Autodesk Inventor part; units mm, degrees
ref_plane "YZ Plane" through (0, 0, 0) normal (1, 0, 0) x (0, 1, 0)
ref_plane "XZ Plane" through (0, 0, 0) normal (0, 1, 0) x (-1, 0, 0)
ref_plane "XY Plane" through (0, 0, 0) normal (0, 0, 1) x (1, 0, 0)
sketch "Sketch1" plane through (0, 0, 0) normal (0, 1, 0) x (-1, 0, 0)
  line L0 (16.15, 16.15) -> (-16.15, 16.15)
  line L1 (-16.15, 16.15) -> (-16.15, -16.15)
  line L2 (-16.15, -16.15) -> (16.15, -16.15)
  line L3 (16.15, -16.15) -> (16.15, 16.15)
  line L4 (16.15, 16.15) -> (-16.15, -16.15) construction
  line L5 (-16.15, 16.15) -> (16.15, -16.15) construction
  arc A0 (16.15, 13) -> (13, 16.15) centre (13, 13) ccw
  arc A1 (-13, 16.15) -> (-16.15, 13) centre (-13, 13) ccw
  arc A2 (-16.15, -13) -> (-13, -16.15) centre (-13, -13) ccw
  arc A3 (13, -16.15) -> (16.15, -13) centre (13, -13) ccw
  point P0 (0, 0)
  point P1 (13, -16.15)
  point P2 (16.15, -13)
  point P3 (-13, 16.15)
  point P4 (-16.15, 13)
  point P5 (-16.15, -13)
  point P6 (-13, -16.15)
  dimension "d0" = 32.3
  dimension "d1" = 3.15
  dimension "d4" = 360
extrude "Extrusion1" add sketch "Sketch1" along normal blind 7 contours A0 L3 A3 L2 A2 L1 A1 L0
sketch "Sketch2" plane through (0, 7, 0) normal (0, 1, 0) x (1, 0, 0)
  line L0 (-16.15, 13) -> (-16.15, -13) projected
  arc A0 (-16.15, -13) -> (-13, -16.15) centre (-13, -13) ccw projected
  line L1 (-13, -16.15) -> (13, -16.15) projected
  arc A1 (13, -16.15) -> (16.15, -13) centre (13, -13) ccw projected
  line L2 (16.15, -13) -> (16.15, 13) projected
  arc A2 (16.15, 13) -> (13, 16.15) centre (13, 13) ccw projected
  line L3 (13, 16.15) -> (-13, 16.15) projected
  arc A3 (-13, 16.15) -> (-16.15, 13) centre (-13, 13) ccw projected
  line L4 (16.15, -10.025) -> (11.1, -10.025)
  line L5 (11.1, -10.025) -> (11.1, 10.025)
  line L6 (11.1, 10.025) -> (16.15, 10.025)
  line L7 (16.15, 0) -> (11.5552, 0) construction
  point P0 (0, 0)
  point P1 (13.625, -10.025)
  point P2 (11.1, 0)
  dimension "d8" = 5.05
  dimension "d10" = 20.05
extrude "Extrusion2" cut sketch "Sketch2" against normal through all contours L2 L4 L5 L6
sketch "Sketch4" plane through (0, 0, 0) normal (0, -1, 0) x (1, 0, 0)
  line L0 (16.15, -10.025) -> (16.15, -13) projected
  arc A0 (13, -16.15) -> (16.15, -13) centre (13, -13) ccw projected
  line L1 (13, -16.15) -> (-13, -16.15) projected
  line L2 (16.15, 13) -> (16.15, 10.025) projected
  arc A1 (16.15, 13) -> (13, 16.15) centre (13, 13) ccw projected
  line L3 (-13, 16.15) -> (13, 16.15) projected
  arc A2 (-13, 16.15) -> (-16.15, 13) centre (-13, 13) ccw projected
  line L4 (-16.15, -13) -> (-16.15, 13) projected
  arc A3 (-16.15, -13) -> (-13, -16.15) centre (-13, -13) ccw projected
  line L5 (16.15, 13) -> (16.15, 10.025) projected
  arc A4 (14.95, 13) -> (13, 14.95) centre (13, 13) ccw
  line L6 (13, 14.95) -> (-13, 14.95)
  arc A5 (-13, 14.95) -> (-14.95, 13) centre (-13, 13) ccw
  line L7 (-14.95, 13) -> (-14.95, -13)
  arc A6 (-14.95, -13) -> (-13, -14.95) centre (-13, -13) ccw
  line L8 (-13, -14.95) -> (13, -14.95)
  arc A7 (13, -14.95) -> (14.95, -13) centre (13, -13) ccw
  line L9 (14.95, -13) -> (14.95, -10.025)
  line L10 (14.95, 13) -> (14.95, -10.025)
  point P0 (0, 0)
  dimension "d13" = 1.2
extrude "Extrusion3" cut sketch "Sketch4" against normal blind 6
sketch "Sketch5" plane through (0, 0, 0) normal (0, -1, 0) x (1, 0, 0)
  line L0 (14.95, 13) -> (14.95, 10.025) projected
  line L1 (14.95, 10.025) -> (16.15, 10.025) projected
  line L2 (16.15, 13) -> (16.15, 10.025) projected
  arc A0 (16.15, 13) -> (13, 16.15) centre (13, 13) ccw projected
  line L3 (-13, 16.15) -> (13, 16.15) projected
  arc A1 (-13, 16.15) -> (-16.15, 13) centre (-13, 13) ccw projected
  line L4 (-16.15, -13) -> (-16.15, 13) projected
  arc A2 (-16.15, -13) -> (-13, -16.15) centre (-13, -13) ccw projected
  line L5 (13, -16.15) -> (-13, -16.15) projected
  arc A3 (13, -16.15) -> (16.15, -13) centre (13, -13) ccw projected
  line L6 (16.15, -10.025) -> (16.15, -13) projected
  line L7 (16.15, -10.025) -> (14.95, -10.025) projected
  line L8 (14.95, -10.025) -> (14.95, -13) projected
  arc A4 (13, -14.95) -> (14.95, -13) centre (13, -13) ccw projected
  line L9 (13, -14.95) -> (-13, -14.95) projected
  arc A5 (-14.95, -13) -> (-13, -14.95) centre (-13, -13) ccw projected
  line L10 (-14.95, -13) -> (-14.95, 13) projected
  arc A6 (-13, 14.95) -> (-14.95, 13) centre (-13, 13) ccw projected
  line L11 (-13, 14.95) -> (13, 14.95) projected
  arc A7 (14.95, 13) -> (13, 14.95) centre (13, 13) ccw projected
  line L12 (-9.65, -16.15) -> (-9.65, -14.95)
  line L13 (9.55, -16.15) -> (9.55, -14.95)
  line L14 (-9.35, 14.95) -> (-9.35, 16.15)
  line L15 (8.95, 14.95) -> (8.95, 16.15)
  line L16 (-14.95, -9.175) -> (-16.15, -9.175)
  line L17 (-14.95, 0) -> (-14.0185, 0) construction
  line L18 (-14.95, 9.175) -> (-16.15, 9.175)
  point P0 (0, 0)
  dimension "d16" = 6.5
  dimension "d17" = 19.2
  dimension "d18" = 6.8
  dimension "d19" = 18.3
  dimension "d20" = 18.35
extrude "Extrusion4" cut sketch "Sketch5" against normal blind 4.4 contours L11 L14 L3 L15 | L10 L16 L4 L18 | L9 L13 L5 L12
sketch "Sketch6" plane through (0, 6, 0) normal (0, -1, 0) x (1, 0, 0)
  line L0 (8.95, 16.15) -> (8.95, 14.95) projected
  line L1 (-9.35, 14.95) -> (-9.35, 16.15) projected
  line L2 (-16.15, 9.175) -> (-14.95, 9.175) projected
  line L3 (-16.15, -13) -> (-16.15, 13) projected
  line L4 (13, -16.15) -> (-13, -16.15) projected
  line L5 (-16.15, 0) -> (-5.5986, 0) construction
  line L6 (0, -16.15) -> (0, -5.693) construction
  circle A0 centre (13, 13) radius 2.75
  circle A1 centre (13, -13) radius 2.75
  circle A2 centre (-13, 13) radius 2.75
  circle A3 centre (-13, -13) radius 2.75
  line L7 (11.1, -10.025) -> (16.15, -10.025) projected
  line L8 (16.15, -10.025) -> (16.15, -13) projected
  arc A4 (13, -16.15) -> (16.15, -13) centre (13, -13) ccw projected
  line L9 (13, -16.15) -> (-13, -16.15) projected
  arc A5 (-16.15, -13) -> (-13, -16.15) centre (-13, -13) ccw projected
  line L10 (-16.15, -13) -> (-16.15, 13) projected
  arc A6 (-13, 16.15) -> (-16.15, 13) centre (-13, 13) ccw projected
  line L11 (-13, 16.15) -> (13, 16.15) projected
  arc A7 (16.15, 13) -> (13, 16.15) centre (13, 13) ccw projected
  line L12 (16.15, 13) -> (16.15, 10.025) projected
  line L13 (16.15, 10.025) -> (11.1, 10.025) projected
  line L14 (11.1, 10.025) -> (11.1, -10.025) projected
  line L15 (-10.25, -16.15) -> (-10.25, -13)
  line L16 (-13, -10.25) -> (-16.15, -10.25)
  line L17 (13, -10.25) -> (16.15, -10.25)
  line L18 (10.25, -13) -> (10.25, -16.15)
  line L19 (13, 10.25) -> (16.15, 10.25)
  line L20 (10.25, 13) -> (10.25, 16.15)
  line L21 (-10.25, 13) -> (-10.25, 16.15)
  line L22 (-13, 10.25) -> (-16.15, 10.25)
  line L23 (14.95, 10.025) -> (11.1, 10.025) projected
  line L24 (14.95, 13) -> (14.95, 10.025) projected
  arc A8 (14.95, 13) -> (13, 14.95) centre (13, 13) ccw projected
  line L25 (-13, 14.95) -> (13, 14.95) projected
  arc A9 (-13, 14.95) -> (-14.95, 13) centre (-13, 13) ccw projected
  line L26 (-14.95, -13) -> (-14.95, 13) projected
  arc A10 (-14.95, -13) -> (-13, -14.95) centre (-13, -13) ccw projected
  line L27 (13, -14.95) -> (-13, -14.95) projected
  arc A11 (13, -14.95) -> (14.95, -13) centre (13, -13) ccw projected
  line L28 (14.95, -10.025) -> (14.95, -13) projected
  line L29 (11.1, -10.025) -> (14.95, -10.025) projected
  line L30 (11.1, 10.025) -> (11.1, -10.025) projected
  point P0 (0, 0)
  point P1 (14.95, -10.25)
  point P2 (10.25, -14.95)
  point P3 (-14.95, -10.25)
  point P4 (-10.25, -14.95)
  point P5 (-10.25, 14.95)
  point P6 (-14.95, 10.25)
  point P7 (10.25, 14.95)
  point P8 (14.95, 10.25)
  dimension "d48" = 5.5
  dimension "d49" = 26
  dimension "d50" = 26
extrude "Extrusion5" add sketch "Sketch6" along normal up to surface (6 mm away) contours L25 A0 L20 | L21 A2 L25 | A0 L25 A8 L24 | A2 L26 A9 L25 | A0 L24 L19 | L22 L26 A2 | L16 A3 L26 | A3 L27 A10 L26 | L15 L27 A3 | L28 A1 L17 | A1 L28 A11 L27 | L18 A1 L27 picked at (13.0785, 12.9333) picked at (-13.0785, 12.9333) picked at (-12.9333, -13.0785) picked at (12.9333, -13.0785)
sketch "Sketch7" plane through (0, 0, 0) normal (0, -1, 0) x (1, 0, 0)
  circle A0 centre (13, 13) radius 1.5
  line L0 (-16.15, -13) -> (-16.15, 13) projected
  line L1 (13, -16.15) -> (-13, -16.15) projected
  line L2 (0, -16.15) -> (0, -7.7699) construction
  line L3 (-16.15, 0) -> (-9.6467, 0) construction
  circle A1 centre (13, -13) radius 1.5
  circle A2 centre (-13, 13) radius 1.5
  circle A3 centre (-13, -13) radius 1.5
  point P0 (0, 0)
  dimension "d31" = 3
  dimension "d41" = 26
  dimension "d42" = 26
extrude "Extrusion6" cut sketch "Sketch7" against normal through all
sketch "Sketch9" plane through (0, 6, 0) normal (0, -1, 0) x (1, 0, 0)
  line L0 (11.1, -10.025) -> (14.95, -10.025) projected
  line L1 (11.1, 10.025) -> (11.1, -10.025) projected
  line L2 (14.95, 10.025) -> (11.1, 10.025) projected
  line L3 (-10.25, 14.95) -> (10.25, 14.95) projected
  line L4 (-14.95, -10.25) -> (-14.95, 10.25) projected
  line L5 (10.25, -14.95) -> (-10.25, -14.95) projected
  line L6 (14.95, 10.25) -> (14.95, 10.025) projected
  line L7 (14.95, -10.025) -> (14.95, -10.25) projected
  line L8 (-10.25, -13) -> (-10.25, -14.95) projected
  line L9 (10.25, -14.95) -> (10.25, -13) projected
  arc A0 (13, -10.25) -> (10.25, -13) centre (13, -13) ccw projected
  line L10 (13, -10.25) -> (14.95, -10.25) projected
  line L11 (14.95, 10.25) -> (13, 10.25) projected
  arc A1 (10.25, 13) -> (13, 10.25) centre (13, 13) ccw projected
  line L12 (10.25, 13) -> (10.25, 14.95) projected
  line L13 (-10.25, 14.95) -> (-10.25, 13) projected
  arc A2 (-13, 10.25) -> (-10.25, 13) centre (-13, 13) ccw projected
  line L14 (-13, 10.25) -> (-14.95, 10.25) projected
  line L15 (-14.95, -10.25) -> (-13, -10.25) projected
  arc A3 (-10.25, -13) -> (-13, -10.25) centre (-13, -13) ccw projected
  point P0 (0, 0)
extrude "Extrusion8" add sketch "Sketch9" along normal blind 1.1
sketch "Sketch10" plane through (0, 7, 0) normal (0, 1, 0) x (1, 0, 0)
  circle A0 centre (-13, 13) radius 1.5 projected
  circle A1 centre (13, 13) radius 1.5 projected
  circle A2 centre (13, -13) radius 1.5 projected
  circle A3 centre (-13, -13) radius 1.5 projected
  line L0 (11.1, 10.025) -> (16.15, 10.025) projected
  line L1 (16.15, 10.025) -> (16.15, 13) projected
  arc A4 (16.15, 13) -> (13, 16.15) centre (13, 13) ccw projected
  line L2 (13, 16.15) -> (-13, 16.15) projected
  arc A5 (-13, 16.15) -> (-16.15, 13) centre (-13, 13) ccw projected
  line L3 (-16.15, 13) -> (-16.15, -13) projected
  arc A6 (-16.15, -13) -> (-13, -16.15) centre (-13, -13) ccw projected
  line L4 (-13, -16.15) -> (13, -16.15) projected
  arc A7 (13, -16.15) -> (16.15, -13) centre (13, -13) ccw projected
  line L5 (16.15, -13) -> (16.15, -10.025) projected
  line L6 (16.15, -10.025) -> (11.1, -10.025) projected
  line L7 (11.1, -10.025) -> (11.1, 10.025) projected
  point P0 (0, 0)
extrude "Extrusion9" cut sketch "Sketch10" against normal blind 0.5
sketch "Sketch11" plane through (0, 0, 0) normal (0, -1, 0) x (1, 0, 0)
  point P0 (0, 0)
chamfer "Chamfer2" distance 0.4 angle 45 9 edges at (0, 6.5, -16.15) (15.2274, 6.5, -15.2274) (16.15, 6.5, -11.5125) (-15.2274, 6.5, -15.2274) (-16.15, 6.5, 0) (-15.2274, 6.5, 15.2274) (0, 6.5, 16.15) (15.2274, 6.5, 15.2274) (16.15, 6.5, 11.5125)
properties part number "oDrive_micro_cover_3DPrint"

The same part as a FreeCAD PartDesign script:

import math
import FreeCAD as App
import Part
import Sketcher


def edges_at(feature, points):
    """Names of the edges that pass closest to the given points."""
    edges = feature.Shape.Edges
    near = lambda p: min(range(len(edges)), key=lambda i: edges[i].distToShape(Part.Vertex(*p))[0])
    return sorted({f"Edge{near(p) + 1}" for p in points})

doc = App.newDocument("Part")
body = doc.addObject("PartDesign::Body", "Body")

# Sketch on XZ plane
sketch1 = body.newObject("Sketcher::SketchObject", "Sketch")
sketch1.AttachmentSupport = (doc.getObject("XZ_Plane"), [""])
sketch1.MapMode = "FlatFace"
sketch1.addGeometry(Part.ArcOfCircle(Part.Circle(App.Vector(-13, 13, 0), App.Vector(0, 0, 1), 3.1), math.radians(90), math.radians(180)), False)
sketch1.addGeometry(Part.LineSegment(App.Vector(-13, 16.1, 0), App.Vector(13, 16.1, 0)), False)
sketch1.addGeometry(Part.ArcOfCircle(Part.Circle(App.Vector(13, 13, 0), App.Vector(0, 0, 1), 3.1), math.radians(0), math.radians(90)), False)
sketch1.addGeometry(Part.LineSegment(App.Vector(16.1, 13, 0), App.Vector(16.1, -13, 0)), False)
sketch1.addGeometry(Part.ArcOfCircle(Part.Circle(App.Vector(13, -13, 0), App.Vector(0, 0, 1), 3.1), math.radians(-90), math.radians(0)), False)
sketch1.addGeometry(Part.LineSegment(App.Vector(13, -16.1, 0), App.Vector(-13, -16.1, 0)), False)
sketch1.addGeometry(Part.ArcOfCircle(Part.Circle(App.Vector(-13, -13, 0), App.Vector(0, 0, 1), 3.1), math.radians(180), math.radians(270)), False)
sketch1.addGeometry(Part.LineSegment(App.Vector(-16.1, -13, 0), App.Vector(-16.1, 13, 0)), False)
sketch1.addConstraint(Sketcher.Constraint("Tangent", 0, 1, 1, 1))
sketch1.addConstraint(Sketcher.Constraint("Tangent", 1, 2, 2, 2))
sketch1.addConstraint(Sketcher.Constraint("Tangent", 2, 1, 3, 1))
sketch1.addConstraint(Sketcher.Constraint("Tangent", 3, 2, 4, 2))
sketch1.addConstraint(Sketcher.Constraint("Tangent", 4, 1, 5, 1))
sketch1.addConstraint(Sketcher.Constraint("Tangent", 5, 2, 6, 2))
sketch1.addConstraint(Sketcher.Constraint("Tangent", 6, 1, 7, 1))
sketch1.addConstraint(Sketcher.Constraint("Tangent", 7, 2, 0, 2))
sketch1.addConstraint(Sketcher.Constraint("Horizontal", 1))
sketch1.addConstraint(Sketcher.Constraint("Vertical", 3))
sketch1.addConstraint(Sketcher.Constraint("Horizontal", 5))
sketch1.addConstraint(Sketcher.Constraint("Vertical", 7))
sketch1.addConstraint(Sketcher.Constraint("Equal", 0, 2))
sketch1.addConstraint(Sketcher.Constraint("Equal", 2, 4))
sketch1.addConstraint(Sketcher.Constraint("Equal", 4, 6))
sketch1.addConstraint(Sketcher.Constraint("Symmetric", 0, 3, 4, 3, -1, 1))
sketch1.addConstraint(Sketcher.Constraint("Equal", 5, 3))
sketch1.addConstraint(Sketcher.Constraint("Radius", 0, 3.15))
sketch1.addConstraint(Sketcher.Constraint("DistanceX", 1, 1, 1, 2, 26.0))
pad1 = body.newObject("PartDesign::Pad", "Pad")
pad1.Profile = sketch1
pad1.Length = 7
pad1.Reversed = True

# Sketch on XZ plane
sketch2 = body.newObject("Sketcher::SketchObject", "Sketch001")
sketch2.AttachmentSupport = (doc.getObject("XZ_Plane"), [""])
sketch2.MapMode = "FlatFace"
sketch2.AttachmentOffset = App.Placement(App.Vector(0, 0, -7), App.Rotation())
sketch2.addGeometry(Part.LineSegment(App.Vector(16, 10, 0), App.Vector(16, -10, 0)), False)
sketch2.addGeometry(Part.LineSegment(App.Vector(16, -10, 0), App.Vector(11, -10, 0)), False)
sketch2.addGeometry(Part.LineSegment(App.Vector(11, -10, 0), App.Vector(11, 10, 0)), False)
sketch2.addGeometry(Part.LineSegment(App.Vector(11, 10, 0), App.Vector(16, 10, 0)), False)
sketch2.addConstraint(Sketcher.Constraint("Coincident", 0, 2, 1, 1))
sketch2.addConstraint(Sketcher.Constraint("Coincident", 1, 2, 2, 1))
sketch2.addConstraint(Sketcher.Constraint("Coincident", 2, 2, 3, 1))
sketch2.addConstraint(Sketcher.Constraint("Coincident", 3, 2, 0, 1))
sketch2.addConstraint(Sketcher.Constraint("Vertical", 0))
sketch2.addConstraint(Sketcher.Constraint("Horizontal", 1))
sketch2.addConstraint(Sketcher.Constraint("Vertical", 2))
sketch2.addConstraint(Sketcher.Constraint("Horizontal", 3))
sketch2.addConstraint(Sketcher.Constraint("DistanceX", 1, 2, 1, 1, 5.05))
sketch2.addConstraint(Sketcher.Constraint("DistanceY", 0, 2, 0, 1, 20.05))
sketch2.addConstraint(Sketcher.Constraint("DistanceX", -1, 1, 1, 2, 11.1))
sketch2.addConstraint(Sketcher.Constraint("DistanceY", 0, 2, -1, 1, 10.025))
pocket1 = body.newObject("PartDesign::Pocket", "Pocket")
pocket1.Profile = sketch2
pocket1.Type = "ThroughAll"
pocket1.Reversed = True

# Sketch on XZ plane
sketch3 = body.newObject("Sketcher::SketchObject", "Sketch002")
sketch3.AttachmentSupport = (doc.getObject("XZ_Plane"), [""])
sketch3.MapMode = "FlatFace"
sketch3.addGeometry(Part.LineSegment(App.Vector(14.9, -13, 0), App.Vector(14.9, 13, 0)), False)
sketch3.addGeometry(Part.ArcOfCircle(Part.Circle(App.Vector(13, 13, 0), App.Vector(0, 0, 1), 1.9), math.radians(0), math.radians(90)), False)
sketch3.addGeometry(Part.LineSegment(App.Vector(13, 14.9, 0), App.Vector(-13, 14.9, 0)), False)
sketch3.addGeometry(Part.ArcOfCircle(Part.Circle(App.Vector(-13, 13, 0), App.Vector(0, 0, 1), 1.9), math.radians(90), math.radians(180)), False)
sketch3.addGeometry(Part.LineSegment(App.Vector(-14.9, 13, 0), App.Vector(-14.9, -13, 0)), False)
sketch3.addGeometry(Part.ArcOfCircle(Part.Circle(App.Vector(-13, -13, 0), App.Vector(0, 0, 1), 1.9), math.radians(180), math.radians(270)), False)
sketch3.addGeometry(Part.LineSegment(App.Vector(-13, -14.9, 0), App.Vector(13, -14.9, 0)), False)
sketch3.addGeometry(Part.ArcOfCircle(Part.Circle(App.Vector(13, -13, 0), App.Vector(0, 0, 1), 1.9), math.radians(-90), math.radians(0)), False)
sketch3.addConstraint(Sketcher.Constraint("Tangent", 0, 2, 1, 1))
sketch3.addConstraint(Sketcher.Constraint("Tangent", 1, 2, 2, 1))
sketch3.addConstraint(Sketcher.Constraint("Tangent", 2, 2, 3, 1))
sketch3.addConstraint(Sketcher.Constraint("Tangent", 3, 2, 4, 1))
sketch3.addConstraint(Sketcher.Constraint("Tangent", 4, 2, 5, 1))
sketch3.addConstraint(Sketcher.Constraint("Tangent", 5, 2, 6, 1))
sketch3.addConstraint(Sketcher.Constraint("Tangent", 6, 2, 7, 1))
sketch3.addConstraint(Sketcher.Constraint("Tangent", 7, 2, 0, 1))
sketch3.addConstraint(Sketcher.Constraint("Vertical", 0))
sketch3.addConstraint(Sketcher.Constraint("Horizontal", 2))
sketch3.addConstraint(Sketcher.Constraint("Vertical", 4))
sketch3.addConstraint(Sketcher.Constraint("Horizontal", 6))
sketch3.addConstraint(Sketcher.Constraint("Equal", 1, 3))
sketch3.addConstraint(Sketcher.Constraint("Equal", 3, 5))
sketch3.addConstraint(Sketcher.Constraint("Equal", 5, 7))
sketch3.addConstraint(Sketcher.Constraint("Symmetric", 1, 3, 5, 3, -1, 1))
sketch3.addConstraint(Sketcher.Constraint("Equal", 6, 0))
sketch3.addConstraint(Sketcher.Constraint("DistanceX", 2, 2, 2, 1, 26.0))
sketch3.addConstraint(Sketcher.Constraint("Radius", 1, 1.95))
pocket2 = body.newObject("PartDesign::Pocket", "Pocket001")
pocket2.Profile = sketch3
pocket2.Length = 6

# Sketch on XZ plane
sketch4 = body.newObject("Sketcher::SketchObject", "Sketch003")
sketch4.AttachmentSupport = (doc.getObject("XZ_Plane"), [""])
sketch4.MapMode = "FlatFace"
sketch4.addGeometry(Part.LineSegment(App.Vector(-9.3, 14.9, 0), App.Vector(8.9, 14.9, 0)), False)
sketch4.addGeometry(Part.LineSegment(App.Vector(8.9, 14.9, 0), App.Vector(8.9, 16.1, 0)), False)
sketch4.addGeometry(Part.LineSegment(App.Vector(8.9, 16.1, 0), App.Vector(-9.3, 16.1, 0)), False)
sketch4.addGeometry(Part.LineSegment(App.Vector(-9.3, 16.1, 0), App.Vector(-9.3, 14.9, 0)), False)
sketch4.addGeometry(Part.LineSegment(App.Vector(-14.9, -9.2, 0), App.Vector(-14.9, 9.2, 0)), False)
sketch4.addGeometry(Part.LineSegment(App.Vector(-14.9, 9.2, 0), App.Vector(-16.1, 9.2, 0)), False)
sketch4.addGeometry(Part.LineSegment(App.Vector(-16.1, 9.2, 0), App.Vector(-16.1, -9.2, 0)), False)
sketch4.addGeometry(Part.LineSegment(App.Vector(-16.1, -9.2, 0), App.Vector(-14.9, -9.2, 0)), False)
sketch4.addGeometry(Part.LineSegment(App.Vector(9.6, -14.9, 0), App.Vector(-9.7, -14.9, 0)), False)
sketch4.addGeometry(Part.LineSegment(App.Vector(-9.7, -14.9, 0), App.Vector(-9.7, -16.1, 0)), False)
sketch4.addGeometry(Part.LineSegment(App.Vector(-9.7, -16.1, 0), App.Vector(9.6, -16.1, 0)), False)
sketch4.addGeometry(Part.LineSegment(App.Vector(9.6, -16.1, 0), App.Vector(9.6, -14.9, 0)), False)
sketch4.addConstraint(Sketcher.Constraint("Coincident", 0, 2, 1, 1))
sketch4.addConstraint(Sketcher.Constraint("Coincident", 1, 2, 2, 1))
sketch4.addConstraint(Sketcher.Constraint("Coincident", 2, 2, 3, 1))
sketch4.addConstraint(Sketcher.Constraint("Coincident", 3, 2, 0, 1))
sketch4.addConstraint(Sketcher.Constraint("Coincident", 4, 2, 5, 1))
sketch4.addConstraint(Sketcher.Constraint("Coincident", 5, 2, 6, 1))
sketch4.addConstraint(Sketcher.Constraint("Coincident", 6, 2, 7, 1))
sketch4.addConstraint(Sketcher.Constraint("Coincident", 7, 2, 4, 1))
sketch4.addConstraint(Sketcher.Constraint("Coincident", 8, 2, 9, 1))
sketch4.addConstraint(Sketcher.Constraint("Coincident", 9, 2, 10, 1))
sketch4.addConstraint(Sketcher.Constraint("Coincident", 10, 2, 11, 1))
sketch4.addConstraint(Sketcher.Constraint("Coincident", 11, 2, 8, 1))
sketch4.addConstraint(Sketcher.Constraint("Horizontal", 0))
sketch4.addConstraint(Sketcher.Constraint("Vertical", 1))
sketch4.addConstraint(Sketcher.Constraint("Horizontal", 2))
sketch4.addConstraint(Sketcher.Constraint("Vertical", 3))
sketch4.addConstraint(Sketcher.Constraint("Vertical", 4))
sketch4.addConstraint(Sketcher.Constraint("Horizontal", 5))
sketch4.addConstraint(Sketcher.Constraint("Vertical", 6))
sketch4.addConstraint(Sketcher.Constraint("Horizontal", 7))
sketch4.addConstraint(Sketcher.Constraint("Horizontal", 8))
sketch4.addConstraint(Sketcher.Constraint("Vertical", 9))
sketch4.addConstraint(Sketcher.Constraint("Horizontal", 10))
sketch4.addConstraint(Sketcher.Constraint("Vertical", 11))
sketch4.addConstraint(Sketcher.Constraint("Equal", 7, 1))
sketch4.addConstraint(Sketcher.Constraint("Equal", 3, 9))
sketch4.addConstraint(Sketcher.Constraint("DistanceX", 0, 1, 0, 2, 18.3))
sketch4.addConstraint(Sketcher.Constraint("DistanceX", 8, 2, 8, 1, 19.2))
sketch4.addConstraint(Sketcher.Constraint("DistanceY", 4, 1, 4, 2, 18.35))
sketch4.addConstraint(Sketcher.Constraint("DistanceX", 5, 2, 3, 2, 6.8))
sketch4.addConstraint(Sketcher.Constraint("DistanceX", 6, 2, 8, 2, 6.5))
sketch4.addConstraint(Sketcher.Constraint("DistanceX", 5, 2, 5, 1, 1.2))
sketch4.addConstraint(Sketcher.Constraint("DistanceY", 8, 2, 3, 2, 29.9))
sketch4.addConstraint(Sketcher.Constraint("DistanceX", -1, 1, 0, 2, 8.95))
sketch4.addConstraint(Sketcher.Constraint("DistanceY", -1, 1, 0, 2, 14.95))
sketch4.addConstraint(Sketcher.Constraint("DistanceY", -1, 1, 4, 2, 9.175))
pocket3 = body.newObject("PartDesign::Pocket", "Pocket002")
pocket3.Profile = sketch4
pocket3.Length = 4.4

# Sketch on XZ plane
sketch5 = body.newObject("Sketcher::SketchObject", "Sketch004")
sketch5.AttachmentSupport = (doc.getObject("XZ_Plane"), [""])
sketch5.MapMode = "FlatFace"
sketch5.AttachmentOffset = App.Placement(App.Vector(0, 0, -6), App.Rotation())
sketch5.addGeometry(Part.LineSegment(App.Vector(10.2, 14.9, 0), App.Vector(10.2, 13, 0)), False)
sketch5.addGeometry(Part.ArcOfCircle(Part.Circle(App.Vector(13, 13, 0), App.Vector(0, 0, 1), 2.8), math.radians(180), math.radians(270)), False)
sketch5.addGeometry(Part.LineSegment(App.Vector(13, 10.2, 0), App.Vector(14.9, 10.2, 0)), False)
sketch5.addGeometry(Part.LineSegment(App.Vector(14.9, 10.2, 0), App.Vector(14.9, 13, 0)), False)
sketch5.addGeometry(Part.ArcOfCircle(Part.Circle(App.Vector(13, 13, 0), App.Vector(0, 0, 1), 1.9), math.radians(0), math.radians(90)), False)
sketch5.addGeometry(Part.LineSegment(App.Vector(13, 14.9, 0), App.Vector(10.2, 14.9, 0)), False)
sketch5.addGeometry(Part.LineSegment(App.Vector(-10.2, 13, 0), App.Vector(-10.2, 14.9, 0)), False)
sketch5.addGeometry(Part.LineSegment(App.Vector(-10.2, 14.9, 0), App.Vector(-13, 14.9, 0)), False)
sketch5.addGeometry(Part.ArcOfCircle(Part.Circle(App.Vector(-13, 13, 0), App.Vector(0, 0, 1), 1.9), math.radians(90), math.radians(180)), False)
sketch5.addGeometry(Part.LineSegment(App.Vector(-14.9, 13, 0), App.Vector(-14.9, 10.2, 0)), False)
sketch5.addGeometry(Part.LineSegment(App.Vector(-14.9, 10.2, 0), App.Vector(-13, 10.2, 0)), False)
sketch5.addGeometry(Part.ArcOfCircle(Part.Circle(App.Vector(-13, 13, 0), App.Vector(0, 0, 1), 2.8), math.radians(-90), math.radians(0)), False)
sketch5.addGeometry(Part.LineSegment(App.Vector(-13, -10.2, 0), App.Vector(-14.9, -10.2, 0)), False)
sketch5.addGeometry(Part.LineSegment(App.Vector(-14.9, -10.2, 0), App.Vector(-14.9, -13, 0)), False)
sketch5.addGeometry(Part.ArcOfCircle(Part.Circle(App.Vector(-13, -13, 0), App.Vector(0, 0, 1), 1.9), math.radians(180), math.radians(270)), False)
sketch5.addGeometry(Part.LineSegment(App.Vector(-13, -14.9, 0), App.Vector(-10.2, -14.9, 0)), False)
sketch5.addGeometry(Part.LineSegment(App.Vector(-10.2, -14.9, 0), App.Vector(-10.2, -13, 0)), False)
sketch5.addGeometry(Part.ArcOfCircle(Part.Circle(App.Vector(-13, -13, 0), App.Vector(0, 0, 1), 2.8), math.radians(0), math.radians(90)), False)
sketch5.addGeometry(Part.LineSegment(App.Vector(14.9, -10.2, 0), App.Vector(13, -10.2, 0)), False)
sketch5.addGeometry(Part.ArcOfCircle(Part.Circle(App.Vector(13, -13, 0), App.Vector(0, 0, 1), 2.8), math.radians(90), math.radians(180)), False)
sketch5.addGeometry(Part.LineSegment(App.Vector(10.2, -13, 0), App.Vector(10.2, -14.9, 0)), False)
sketch5.addGeometry(Part.LineSegment(App.Vector(10.2, -14.9, 0), App.Vector(13, -14.9, 0)), False)
sketch5.addGeometry(Part.ArcOfCircle(Part.Circle(App.Vector(13, -13, 0), App.Vector(0, 0, 1), 1.9), math.radians(-90), math.radians(0)), False)
sketch5.addGeometry(Part.LineSegment(App.Vector(14.9, -13, 0), App.Vector(14.9, -10.2, 0)), False)
sketch5.addConstraint(Sketcher.Constraint("Tangent", 0, 2, 1, 1))
sketch5.addConstraint(Sketcher.Constraint("Tangent", 1, 2, 2, 1))
sketch5.addConstraint(Sketcher.Constraint("Coincident", 2, 2, 3, 1))
sketch5.addConstraint(Sketcher.Constraint("Tangent", 3, 2, 4, 1))
sketch5.addConstraint(Sketcher.Constraint("Tangent", 4, 2, 5, 1))
sketch5.addConstraint(Sketcher.Constraint("Coincident", 5, 2, 0, 1))
sketch5.addConstraint(Sketcher.Constraint("Coincident", 6, 2, 7, 1))
sketch5.addConstraint(Sketcher.Constraint("Tangent", 7, 2, 8, 1))
sketch5.addConstraint(Sketcher.Constraint("Tangent", 8, 2, 9, 1))
sketch5.addConstraint(Sketcher.Constraint("Coincident", 9, 2, 10, 1))
sketch5.addConstraint(Sketcher.Constraint("Tangent", 10, 2, 11, 1))
sketch5.addConstraint(Sketcher.Constraint("Tangent", 11, 2, 6, 1))
sketch5.addConstraint(Sketcher.Constraint("Coincident", 12, 2, 13, 1))
sketch5.addConstraint(Sketcher.Constraint("Tangent", 13, 2, 14, 1))
sketch5.addConstraint(Sketcher.Constraint("Tangent", 14, 2, 15, 1))
sketch5.addConstraint(Sketcher.Constraint("Coincident", 15, 2, 16, 1))
sketch5.addConstraint(Sketcher.Constraint("Tangent", 16, 2, 17, 1))
sketch5.addConstraint(Sketcher.Constraint("Tangent", 17, 2, 12, 1))
sketch5.addConstraint(Sketcher.Constraint("Tangent", 18, 2, 19, 1))
sketch5.addConstraint(Sketcher.Constraint("Tangent", 19, 2, 20, 1))
sketch5.addConstraint(Sketcher.Constraint("Coincident", 20, 2, 21, 1))
sketch5.addConstraint(Sketcher.Constraint("Tangent", 21, 2, 22, 1))
sketch5.addConstraint(Sketcher.Constraint("Tangent", 22, 2, 23, 1))
sketch5.addConstraint(Sketcher.Constraint("Coincident", 23, 2, 18, 1))
sketch5.addConstraint(Sketcher.Constraint("Vertical", 0))
sketch5.addConstraint(Sketcher.Constraint("Horizontal", 2))
sketch5.addConstraint(Sketcher.Constraint("Vertical", 3))
sketch5.addConstraint(Sketcher.Constraint("Horizontal", 5))
sketch5.addConstraint(Sketcher.Constraint("Vertical", 6))
sketch5.addConstraint(Sketcher.Constraint("Horizontal", 7))
sketch5.addConstraint(Sketcher.Constraint("Vertical", 9))
sketch5.addConstraint(Sketcher.Constraint("Horizontal", 10))
sketch5.addConstraint(Sketcher.Constraint("Horizontal", 12))
sketch5.addConstraint(Sketcher.Constraint("Vertical", 13))
sketch5.addConstraint(Sketcher.Constraint("Horizontal", 15))
sketch5.addConstraint(Sketcher.Constraint("Vertical", 16))
sketch5.addConstraint(Sketcher.Constraint("Horizontal", 18))
sketch5.addConstraint(Sketcher.Constraint("Vertical", 20))
sketch5.addConstraint(Sketcher.Constraint("Horizontal", 21))
sketch5.addConstraint(Sketcher.Constraint("Vertical", 23))
sketch5.addConstraint(Sketcher.Constraint("Coincident", 4, 3, 1, 3))
sketch5.addConstraint(Sketcher.Constraint("Coincident", 11, 3, 8, 3))
sketch5.addConstraint(Sketcher.Constraint("Coincident", 17, 3, 14, 3))
sketch5.addConstraint(Sketcher.Constraint("Coincident", 22, 3, 19, 3))
sketch5.addConstraint(Sketcher.Constraint("Equal", 4, 8))
sketch5.addConstraint(Sketcher.Constraint("Equal", 1, 11))
sketch5.addConstraint(Sketcher.Constraint("Equal", 8, 14))
sketch5.addConstraint(Sketcher.Constraint("Equal", 11, 17))
sketch5.addConstraint(Sketcher.Constraint("Equal", 17, 19))
sketch5.addConstraint(Sketcher.Constraint("Equal", 14, 22))
sketch5.addConstraint(Sketcher.Constraint("Symmetric", 1, 3, 14, 3, -1, 1))
sketch5.addConstraint(Sketcher.Constraint("Symmetric", 8, 3, 19, 3, -1, 1))
sketch5.addConstraint(Sketcher.Constraint("Symmetric", 1, 3, 8, 3, -2))
sketch5.addConstraint(Sketcher.Constraint("Radius", 1, 2.75))
sketch5.addConstraint(Sketcher.Constraint("DistanceX", 8, 3, 1, 3, 26.0))
sketch5.addConstraint(Sketcher.Constraint("DistanceY", 14, 3, 8, 3, 26.0))
sketch5.addConstraint(Sketcher.Constraint("Radius", 4, 1.95))
pad2 = body.newObject("PartDesign::Pad", "Pad001")
pad2.Profile = sketch5
pad2.Length = 6

# Sketch on XZ plane
sketch6 = body.newObject("Sketcher::SketchObject", "Sketch005")
sketch6.AttachmentSupport = (doc.getObject("XZ_Plane"), [""])
sketch6.MapMode = "FlatFace"
sketch6.addGeometry(Part.Circle(App.Vector(13, 13, 0), App.Vector(0, 0, 1), 1.5), False)
sketch6.addGeometry(Part.Circle(App.Vector(13, -13, 0), App.Vector(0, 0, 1), 1.5), False)
sketch6.addGeometry(Part.Circle(App.Vector(-13, 13, 0), App.Vector(0, 0, 1), 1.5), False)
sketch6.addGeometry(Part.Circle(App.Vector(-13, -13, 0), App.Vector(0, 0, 1), 1.5), False)
sketch6.addConstraint(Sketcher.Constraint("Equal", 0, 1))
sketch6.addConstraint(Sketcher.Constraint("Equal", 1, 2))
sketch6.addConstraint(Sketcher.Constraint("Equal", 2, 3))
sketch6.addConstraint(Sketcher.Constraint("Symmetric", 1, 3, 2, 3, -1, 1))
sketch6.addConstraint(Sketcher.Constraint("Symmetric", 0, 3, 3, 3, -1, 1))
sketch6.addConstraint(Sketcher.Constraint("Symmetric", 0, 3, 2, 3, -2))
sketch6.addConstraint(Sketcher.Constraint("Diameter", 0, 3.0))
sketch6.addConstraint(Sketcher.Constraint("DistanceY", 1, 3, 0, 3, 26.0))
sketch6.addConstraint(Sketcher.Constraint("DistanceX", 2, 3, 0, 3, 26.0))
pocket4 = body.newObject("PartDesign::Pocket", "Pocket003")
pocket4.Profile = sketch6
pocket4.Type = "ThroughAll"

# Sketch on XZ plane
sketch7 = body.newObject("Sketcher::SketchObject", "Sketch006")
sketch7.AttachmentSupport = (doc.getObject("XZ_Plane"), [""])
sketch7.MapMode = "FlatFace"
sketch7.AttachmentOffset = App.Placement(App.Vector(0, 0, -6), App.Rotation())
sketch7.addGeometry(Part.LineSegment(App.Vector(14.95, -10.03, 0), App.Vector(11.1, -10.03, 0)), False)
sketch7.addGeometry(Part.LineSegment(App.Vector(11.1, -10.03, 0), App.Vector(11.1, 10.03, 0)), False)
sketch7.addGeometry(Part.LineSegment(App.Vector(11.1, 10.03, 0), App.Vector(14.95, 10.03, 0)), False)
sketch7.addGeometry(Part.LineSegment(App.Vector(14.95, 10.03, 0), App.Vector(14.95, 10.25, 0)), False)
sketch7.addGeometry(Part.LineSegment(App.Vector(14.95, 10.25, 0), App.Vector(13, 10.25, 0)), False)
sketch7.addGeometry(Part.ArcOfCircle(Part.Circle(App.Vector(13, 13, 0), App.Vector(0, 0, 1), 2.75), math.radians(180), math.radians(270)), False)
sketch7.addGeometry(Part.LineSegment(App.Vector(10.25, 13, 0), App.Vector(10.25, 14.95, 0)), False)
sketch7.addGeometry(Part.LineSegment(App.Vector(10.25, 14.95, 0), App.Vector(-10.25, 14.95, 0)), False)
sketch7.addGeometry(Part.LineSegment(App.Vector(-10.25, 14.95, 0), App.Vector(-10.25, 13, 0)), False)
sketch7.addGeometry(Part.ArcOfCircle(Part.Circle(App.Vector(-13, 13, 0), App.Vector(0, 0, 1), 2.75), math.radians(-90), math.radians(0)), False)
sketch7.addGeometry(Part.LineSegment(App.Vector(-13, 10.25, 0), App.Vector(-14.95, 10.25, 0)), False)
sketch7.addGeometry(Part.LineSegment(App.Vector(-14.95, 10.25, 0), App.Vector(-14.95, -10.25, 0)), False)
sketch7.addGeometry(Part.LineSegment(App.Vector(-14.95, -10.25, 0), App.Vector(-13, -10.25, 0)), False)
sketch7.addGeometry(Part.ArcOfCircle(Part.Circle(App.Vector(-13, -13, 0), App.Vector(0, 0, 1), 2.75), math.radians(0), math.radians(90)), False)
sketch7.addGeometry(Part.LineSegment(App.Vector(-10.25, -13, 0), App.Vector(-10.25, -14.95, 0)), False)
sketch7.addGeometry(Part.LineSegment(App.Vector(-10.25, -14.95, 0), App.Vector(10.25, -14.95, 0)), False)
sketch7.addGeometry(Part.LineSegment(App.Vector(10.25, -14.95, 0), App.Vector(10.25, -13, 0)), False)
sketch7.addGeometry(Part.ArcOfCircle(Part.Circle(App.Vector(13, -13, 0), App.Vector(0, 0, 1), 2.75), math.radians(90), math.radians(180)), False)
sketch7.addGeometry(Part.LineSegment(App.Vector(13, -10.25, 0), App.Vector(14.95, -10.25, 0)), False)
sketch7.addGeometry(Part.LineSegment(App.Vector(14.95, -10.25, 0), App.Vector(14.95, -10.03, 0)), False)
sketch7.addConstraint(Sketcher.Constraint("Coincident", 0, 2, 1, 1))
sketch7.addConstraint(Sketcher.Constraint("Coincident", 1, 2, 2, 1))
sketch7.addConstraint(Sketcher.Constraint("Coincident", 2, 2, 3, 1))
sketch7.addConstraint(Sketcher.Constraint("Coincident", 3, 2, 4, 1))
sketch7.addConstraint(Sketcher.Constraint("Tangent", 4, 2, 5, 2))
sketch7.addConstraint(Sketcher.Constraint("Tangent", 5, 1, 6, 1))
sketch7.addConstraint(Sketcher.Constraint("Coincident", 6, 2, 7, 1))
sketch7.addConstraint(Sketcher.Constraint("Coincident", 7, 2, 8, 1))
sketch7.addConstraint(Sketcher.Constraint("Tangent", 8, 2, 9, 2))
sketch7.addConstraint(Sketcher.Constraint("Tangent", 9, 1, 10, 1))
sketch7.addConstraint(Sketcher.Constraint("Coincident", 10, 2, 11, 1))
sketch7.addConstraint(Sketcher.Constraint("Coincident", 11, 2, 12, 1))
sketch7.addConstraint(Sketcher.Constraint("Tangent", 12, 2, 13, 2))
sketch7.addConstraint(Sketcher.Constraint("Tangent", 13, 1, 14, 1))
sketch7.addConstraint(Sketcher.Constraint("Coincident", 14, 2, 15, 1))
sketch7.addConstraint(Sketcher.Constraint("Coincident", 15, 2, 16, 1))
sketch7.addConstraint(Sketcher.Constraint("Tangent", 16, 2, 17, 2))
sketch7.addConstraint(Sketcher.Constraint("Tangent", 17, 1, 18, 1))
sketch7.addConstraint(Sketcher.Constraint("Coincident", 18, 2, 19, 1))
sketch7.addConstraint(Sketcher.Constraint("Coincident", 19, 2, 0, 1))
sketch7.addConstraint(Sketcher.Constraint("Horizontal", 0))
sketch7.addConstraint(Sketcher.Constraint("Vertical", 1))
sketch7.addConstraint(Sketcher.Constraint("Horizontal", 2))
sketch7.addConstraint(Sketcher.Constraint("Vertical", 3))
sketch7.addConstraint(Sketcher.Constraint("Horizontal", 4))
sketch7.addConstraint(Sketcher.Constraint("Vertical", 6))
sketch7.addConstraint(Sketcher.Constraint("Horizontal", 7))
sketch7.addConstraint(Sketcher.Constraint("Vertical", 8))
sketch7.addConstraint(Sketcher.Constraint("Horizontal", 10))
sketch7.addConstraint(Sketcher.Constraint("Vertical", 11))
sketch7.addConstraint(Sketcher.Constraint("Horizontal", 12))
sketch7.addConstraint(Sketcher.Constraint("Vertical", 14))
sketch7.addConstraint(Sketcher.Constraint("Horizontal", 15))
sketch7.addConstraint(Sketcher.Constraint("Vertical", 16))
sketch7.addConstraint(Sketcher.Constraint("Horizontal", 18))
sketch7.addConstraint(Sketcher.Constraint("Vertical", 19))
sketch7.addConstraint(Sketcher.Constraint("Equal", 5, 9))
sketch7.addConstraint(Sketcher.Constraint("Equal", 9, 13))
sketch7.addConstraint(Sketcher.Constraint("Equal", 13, 17))
sketch7.addConstraint(Sketcher.Constraint("Symmetric", 5, 3, 13, 3, -1, 1))
sketch7.addConstraint(Sketcher.Constraint("Symmetric", 9, 3, 17, 3, -1, 1))
sketch7.addConstraint(Sketcher.Constraint("Symmetric", 5, 3, 9, 3, -2))
sketch7.addConstraint(Sketcher.Constraint("Symmetric", 2, 2, 19, 2, -1))
sketch7.addConstraint(Sketcher.Constraint("Equal", 4, 10))
sketch7.addConstraint(Sketcher.Constraint("Equal", 18, 6))
sketch7.addConstraint(Sketcher.Constraint("Equal", 15, 11))
sketch7.addConstraint(Sketcher.Constraint("Equal", 8, 14))
sketch7.addConstraint(Sketcher.Constraint("Radius", 5, 2.75))
sketch7.addConstraint(Sketcher.Constraint("DistanceX", 7, 2, 7, 1, 20.5))
sketch7.addConstraint(Sketcher.Constraint("DistanceX", 0, 2, 0, 1, 3.85))
sketch7.addConstraint(Sketcher.Constraint("DistanceX", 4, 2, 4, 1, 1.95))
sketch7.addConstraint(Sketcher.Constraint("DistanceY", 1, 1, 1, 2, 20.05))
pad3 = body.newObject("PartDesign::Pad", "Pad002")
pad3.Profile = sketch7
pad3.Length = 1.1

# Sketch on XZ plane
sketch8 = body.newObject("Sketcher::SketchObject", "Sketch007")
sketch8.AttachmentSupport = (doc.getObject("XZ_Plane"), [""])
sketch8.MapMode = "FlatFace"
sketch8.AttachmentOffset = App.Placement(App.Vector(0, 0, -7), App.Rotation())
sketch8.addGeometry(Part.LineSegment(App.Vector(11.1, 10, 0), App.Vector(11.1, -10, 0)), False)
sketch8.addGeometry(Part.LineSegment(App.Vector(11.1, -10, 0), App.Vector(16.1, -10, 0)), False)
sketch8.addGeometry(Part.LineSegment(App.Vector(16.1, -10, 0), App.Vector(16.1, -13, 0)), False)
sketch8.addGeometry(Part.ArcOfCircle(Part.Circle(App.Vector(13, -13, 0), App.Vector(0, 0, 1), 3.1), math.radians(-90), math.radians(0)), False)
sketch8.addGeometry(Part.LineSegment(App.Vector(13, -16.1, 0), App.Vector(-13, -16.1, 0)), False)
sketch8.addGeometry(Part.ArcOfCircle(Part.Circle(App.Vector(-13, -13, 0), App.Vector(0, 0, 1), 3.1), math.radians(180), math.radians(270)), False)
sketch8.addGeometry(Part.LineSegment(App.Vector(-16.1, -13, 0), App.Vector(-16.1, 13, 0)), False)
sketch8.addGeometry(Part.ArcOfCircle(Part.Circle(App.Vector(-13, 13, 0), App.Vector(0, 0, 1), 3.1), math.radians(90), math.radians(180)), False)
sketch8.addGeometry(Part.LineSegment(App.Vector(-13, 16.1, 0), App.Vector(13, 16.1, 0)), False)
sketch8.addGeometry(Part.ArcOfCircle(Part.Circle(App.Vector(13, 13, 0), App.Vector(0, 0, 1), 3.1), math.radians(0), math.radians(90)), False)
sketch8.addGeometry(Part.LineSegment(App.Vector(16.1, 13, 0), App.Vector(16.1, 10, 0)), False)
sketch8.addGeometry(Part.LineSegment(App.Vector(16.1, 10, 0), App.Vector(11.1, 10, 0)), False)
sketch8.addGeometry(Part.Circle(App.Vector(-13, 13, 0), App.Vector(0, 0, 1), 1.5), False)
sketch8.addGeometry(Part.Circle(App.Vector(13, 13, 0), App.Vector(0, 0, 1), 1.5), False)
sketch8.addGeometry(Part.Circle(App.Vector(-13, -13, 0), App.Vector(0, 0, 1), 1.5), False)
sketch8.addGeometry(Part.Circle(App.Vector(13, -13, 0), App.Vector(0, 0, 1), 1.5), False)
sketch8.addConstraint(Sketcher.Constraint("Coincident", 0, 2, 1, 1))
sketch8.addConstraint(Sketcher.Constraint("Coincident", 1, 2, 2, 1))
sketch8.addConstraint(Sketcher.Constraint("Tangent", 2, 2, 3, 2))
sketch8.addConstraint(Sketcher.Constraint("Tangent", 3, 1, 4, 1))
sketch8.addConstraint(Sketcher.Constraint("Tangent", 4, 2, 5, 2))
sketch8.addConstraint(Sketcher.Constraint("Tangent", 5, 1, 6, 1))
sketch8.addConstraint(Sketcher.Constraint("Tangent", 6, 2, 7, 2))
sketch8.addConstraint(Sketcher.Constraint("Tangent", 7, 1, 8, 1))
sketch8.addConstraint(Sketcher.Constraint("Tangent", 8, 2, 9, 2))
sketch8.addConstraint(Sketcher.Constraint("Tangent", 9, 1, 10, 1))
sketch8.addConstraint(Sketcher.Constraint("Coincident", 10, 2, 11, 1))
sketch8.addConstraint(Sketcher.Constraint("Coincident", 11, 2, 0, 1))
sketch8.addConstraint(Sketcher.Constraint("Vertical", 0))
sketch8.addConstraint(Sketcher.Constraint("Horizontal", 1))
sketch8.addConstraint(Sketcher.Constraint("Vertical", 2))
sketch8.addConstraint(Sketcher.Constraint("Horizontal", 4))
sketch8.addConstraint(Sketcher.Constraint("Vertical", 6))
sketch8.addConstraint(Sketcher.Constraint("Horizontal", 8))
sketch8.addConstraint(Sketcher.Constraint("Vertical", 10))
sketch8.addConstraint(Sketcher.Constraint("Horizontal", 11))
sketch8.addConstraint(Sketcher.Constraint("Coincident", 12, 3, 7, 3))
sketch8.addConstraint(Sketcher.Constraint("Coincident", 13, 3, 9, 3))
sketch8.addConstraint(Sketcher.Constraint("Coincident", 14, 3, 5, 3))
sketch8.addConstraint(Sketcher.Constraint("Coincident", 15, 3, 3, 3))
sketch8.addConstraint(Sketcher.Constraint("Equal", 3, 5))
sketch8.addConstraint(Sketcher.Constraint("Equal", 5, 7))
sketch8.addConstraint(Sketcher.Constraint("Equal", 7, 9))
sketch8.addConstraint(Sketcher.Constraint("Equal", 12, 13))
sketch8.addConstraint(Sketcher.Constraint("Equal", 13, 14))
sketch8.addConstraint(Sketcher.Constraint("Equal", 14, 15))
sketch8.addConstraint(Sketcher.Constraint("Symmetric", 3, 3, 7, 3, -1, 1))
sketch8.addConstraint(Sketcher.Constraint("Symmetric", 1, 2, 10, 2, -1))
sketch8.addConstraint(Sketcher.Constraint("Equal", 8, 6))
sketch8.addConstraint(Sketcher.Constraint("Diameter", 12, 3.0))
sketch8.addConstraint(Sketcher.Constraint("DistanceX", 4, 2, 4, 1, 26.0))
sketch8.addConstraint(Sketcher.Constraint("Radius", 3, 3.15))
sketch8.addConstraint(Sketcher.Constraint("DistanceX", 1, 1, 1, 2, 5.05))
sketch8.addConstraint(Sketcher.Constraint("DistanceY", 0, 2, 0, 1, 20.05))
pocket5 = body.newObject("PartDesign::Pocket", "Pocket004")
pocket5.Profile = sketch8
pocket5.Length = 0.5
pocket5.Reversed = True
doc.recompute()

chamfer = body.newObject("PartDesign::Chamfer", "Chamfer")
chamfer.Base = (pocket5, edges_at(pocket5, [
    (0, 6.5, -16.15),
    (15.227, 6.5, -15.227),
    (16.15, 6.5, -11.512),
    (-15.227, 6.5, -15.227),
    (-16.15, 6.5, 0),
    (-15.227, 6.5, 15.227),
    (0, 6.5, 16.15),
    (15.227, 6.5, 15.227),
    (16.15, 6.5, 11.512),
]))
chamfer.Size = 0.4

doc.recompute()
